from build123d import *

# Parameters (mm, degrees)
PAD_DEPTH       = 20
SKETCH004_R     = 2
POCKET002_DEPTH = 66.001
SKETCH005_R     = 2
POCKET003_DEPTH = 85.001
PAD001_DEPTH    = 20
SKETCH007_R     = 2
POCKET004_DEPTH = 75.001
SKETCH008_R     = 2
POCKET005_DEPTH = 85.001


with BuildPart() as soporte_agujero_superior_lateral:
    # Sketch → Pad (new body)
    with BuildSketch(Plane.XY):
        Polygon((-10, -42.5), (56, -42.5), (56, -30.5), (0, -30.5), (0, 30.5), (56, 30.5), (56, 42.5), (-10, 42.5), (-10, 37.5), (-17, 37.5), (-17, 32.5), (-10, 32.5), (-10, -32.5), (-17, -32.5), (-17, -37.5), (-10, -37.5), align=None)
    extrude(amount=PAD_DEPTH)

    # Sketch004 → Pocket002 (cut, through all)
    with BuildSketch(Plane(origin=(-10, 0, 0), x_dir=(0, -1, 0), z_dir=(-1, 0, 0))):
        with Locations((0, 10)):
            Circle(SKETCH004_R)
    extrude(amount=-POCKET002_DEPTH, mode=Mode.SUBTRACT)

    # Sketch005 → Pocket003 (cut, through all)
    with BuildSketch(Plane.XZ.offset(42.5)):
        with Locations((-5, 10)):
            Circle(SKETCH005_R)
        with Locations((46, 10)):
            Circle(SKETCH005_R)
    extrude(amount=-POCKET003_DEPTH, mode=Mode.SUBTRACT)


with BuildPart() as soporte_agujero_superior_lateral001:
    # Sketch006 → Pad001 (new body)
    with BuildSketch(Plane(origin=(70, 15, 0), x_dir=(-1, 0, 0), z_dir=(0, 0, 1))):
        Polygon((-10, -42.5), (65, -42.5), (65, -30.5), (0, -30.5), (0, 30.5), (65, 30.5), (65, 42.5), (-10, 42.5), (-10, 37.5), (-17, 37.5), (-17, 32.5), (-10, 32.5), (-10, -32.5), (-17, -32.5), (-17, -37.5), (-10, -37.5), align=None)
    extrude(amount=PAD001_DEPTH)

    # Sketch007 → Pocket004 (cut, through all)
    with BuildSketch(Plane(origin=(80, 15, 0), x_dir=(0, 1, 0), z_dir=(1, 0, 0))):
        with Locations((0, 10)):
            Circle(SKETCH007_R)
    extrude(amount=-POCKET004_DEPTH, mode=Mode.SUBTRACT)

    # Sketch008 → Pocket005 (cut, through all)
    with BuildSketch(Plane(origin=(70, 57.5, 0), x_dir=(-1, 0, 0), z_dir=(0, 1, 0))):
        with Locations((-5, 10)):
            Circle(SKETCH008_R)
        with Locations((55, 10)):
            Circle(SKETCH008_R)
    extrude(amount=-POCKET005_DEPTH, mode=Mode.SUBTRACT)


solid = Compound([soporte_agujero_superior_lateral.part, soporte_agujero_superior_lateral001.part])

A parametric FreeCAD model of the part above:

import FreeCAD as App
import Part
import Sketcher
from FreeCAD import Vector


def add_polygon(sketch, points):
    """Adds a closed chain of lines whose ends are joined by coincident constraints."""
    first, n = sketch.GeometryCount, len(points)
    for a, b in zip(points, points[1:] + points[:1]):
        sketch.addGeometry(Part.LineSegment(App.Vector(*a, 0), App.Vector(*b, 0)), False)
    for i in range(n):
        sketch.addConstraint(Sketcher.Constraint("Coincident", first + i, 2, first + (i + 1) % n, 1))

doc = App.newDocument("Part")
body = doc.addObject("PartDesign::Body", "Body")

# Sketch on XY plane
sketch1 = body.newObject("Sketcher::SketchObject", "Sketch")
sketch1.AttachmentSupport = (doc.getObject("XY_Plane"), [""])
sketch1.MapMode = "FlatFace"
add_polygon(sketch1, [(-10, -42), (56, -42), (56, -30), (0, -30), (0, 30), (56, 30), (56, 42), (-10, 42), (-10, 38), (-17, 38), (-17, 32), (-10, 32), (-10, -32), (-17, -32), (-17, -38), (-10, -38)])  # lines 0-15
sketch1.addConstraint([
    Sketcher.Constraint("Horizontal", 0),
    Sketcher.Constraint("Vertical", 1),
    Sketcher.Constraint("Horizontal", 2),
    Sketcher.Constraint("Vertical", 3),
    Sketcher.Constraint("Horizontal", 4),
    Sketcher.Constraint("Vertical", 5),
    Sketcher.Constraint("Horizontal", 6),
    Sketcher.Constraint("Vertical", 7),
    Sketcher.Constraint("Horizontal", 8),
    Sketcher.Constraint("Vertical", 9),
    Sketcher.Constraint("Horizontal", 10),
    Sketcher.Constraint("Vertical", 11),
    Sketcher.Constraint("Horizontal", 12),
    Sketcher.Constraint("Vertical", 13),
    Sketcher.Constraint("Horizontal", 14),
    Sketcher.Constraint("Vertical", 15),
    Sketcher.Constraint("Symmetric", 2, 2, 3, 2, -1, 1),
    Sketcher.Constraint("Symmetric", 0, 2, 5, 2, -1),
    Sketcher.Constraint("Symmetric", 9, 2, 12, 2, -1),
    Sketcher.Constraint("Symmetric", 7, 2, 14, 2, -1),
    Sketcher.Constraint("Vertical", 7, 2, 10, 2),
    Sketcher.Constraint("Equal", 7, 9),
    Sketcher.Constraint("DistanceX", 0, 1, 0, 2, 66.0),
    Sketcher.Constraint("DistanceX", 2, 2, 2, 1, 56.0),
    Sketcher.Constraint("DistanceX", 8, 2, 8, 1, 7.0),
    Sketcher.Constraint("DistanceY", 1, 1, 1, 2, 12.0),
    Sketcher.Constraint("DistanceY", 3, 1, 3, 2, 61.0),
    Sketcher.Constraint("DistanceY", 7, 2, 7, 1, 5.0),
])
pad1 = body.newObject("PartDesign::Pad", "Pad")
pad1.Profile = sketch1
pad1.Length = 20

# Sketch on YZ plane
sketch2 = body.newObject("Sketcher::SketchObject", "Sketch001")
sketch2.AttachmentSupport = (doc.getObject("YZ_Plane"), [""])
sketch2.MapMode = "FlatFace"
sketch2.AttachmentOffset = App.Placement(Vector(0, 0, -10), App.Rotation())
sketch2.addGeometry(Part.Circle(Vector(0, 10, 0), Vector(0, 0, 1), 2), False)
sketch2.addConstraint([
    Sketcher.Constraint("PointOnObject", 0, 3, -2),
    Sketcher.Constraint("Diameter", 0, 4.0),
    Sketcher.Constraint("DistanceY", -1, 1, 0, 3, 10.0),
])
pocket1 = body.newObject("PartDesign::Pocket", "Pocket")
pocket1.Profile = sketch2
pocket1.Type = "ThroughAll"
pocket1.Reversed = True

# Sketch on XZ plane
sketch3 = body.newObject("Sketcher::SketchObject", "Sketch002")
sketch3.AttachmentSupport = (doc.getObject("XZ_Plane"), [""])
sketch3.MapMode = "FlatFace"
sketch3.AttachmentOffset = App.Placement(Vector(0, 0, 42.5), App.Rotation())
sketch3.addGeometry([
    Part.Circle(Vector(-5, 10, 0), Vector(0, 0, 1), 2),
    Part.Circle(Vector(46, 10, 0), Vector(0, 0, 1), 2),
], False)
sketch3.addConstraint([
    Sketcher.Constraint("Equal", 0, 1),
    Sketcher.Constraint("Horizontal", 0, 3, 1, 3),
    Sketcher.Constraint("Diameter", 0, 4.0),
    Sketcher.Constraint("DistanceX", 0, 3, -1, 1, 5.0),
    Sketcher.Constraint("DistanceY", -1, 1, 0, 3, 10.0),
    Sketcher.Constraint("DistanceX", -1, 1, 1, 3, 46.0),
])
pocket2 = body.newObject("PartDesign::Pocket", "Pocket001")
pocket2.Profile = sketch3
pocket2.Type = "ThroughAll"
body2 = doc.addObject("PartDesign::Body", "Body001")

# Sketch on XY plane
sketch4 = body2.newObject("Sketcher::SketchObject", "Sketch003")
sketch4.AttachmentSupport = (doc.getObject("XY_Plane001"), [""])
sketch4.MapMode = "FlatFace"
add_polygon(sketch4, [(80, 58), (5, 58), (5, 46), (70, 46), (70, -16), (5, -16), (5, -28), (80, -28), (80, -22), (87, -22), (87, -18), (80, -18), (80, 48), (87, 48), (87, 52), (80, 52)])  # lines 0-15
sketch4.addConstraint([
    Sketcher.Constraint("Horizontal", 0),
    Sketcher.Constraint("Vertical", 1),
    Sketcher.Constraint("Horizontal", 2),
    Sketcher.Constraint("Vertical", 3),
    Sketcher.Constraint("Horizontal", 4),
    Sketcher.Constraint("Vertical", 5),
    Sketcher.Constraint("Horizontal", 6),
    Sketcher.Constraint("Vertical", 7),
    Sketcher.Constraint("Horizontal", 8),
    Sketcher.Constraint("Vertical", 9),
    Sketcher.Constraint("Horizontal", 10),
    Sketcher.Constraint("Vertical", 11),
    Sketcher.Constraint("Horizontal", 12),
    Sketcher.Constraint("Vertical", 13),
    Sketcher.Constraint("Horizontal", 14),
    Sketcher.Constraint("Vertical", 15),
    Sketcher.Constraint("Vertical", 1, 2, 4, 2),
    Sketcher.Constraint("Vertical", 7, 2, 10, 2),
    Sketcher.Constraint("Vertical", 9, 2, 12, 2),
    Sketcher.Constraint("Vertical", 11, 2, 14, 2),
    Sketcher.Constraint("Equal", 1, 5),
    Sketcher.Constraint("Equal", 7, 9),
    Sketcher.Constraint("Equal", 4, 11),
    Sketcher.Constraint("Equal", 9, 13),
    Sketcher.Constraint("Equal", 13, 15),
    Sketcher.Constraint("DistanceX", 0, 2, 0, 1, 75.0),
    Sketcher.Constraint("DistanceX", 2, 1, 2, 2, 65.0),
    Sketcher.Constraint("DistanceX", 8, 1, 8, 2, 7.0),
    Sketcher.Constraint("DistanceY", 1, 2, 1, 1, 12.0),
    Sketcher.Constraint("DistanceY", 3, 2, 3, 1, 61.0),
    Sketcher.Constraint("DistanceX", -1, 1, 0, 2, 5.0),
    Sketcher.Constraint("DistanceY", -1, 1, 0, 2, 57.5),
])
pad2 = body2.newObject("PartDesign::Pad", "Pad001")
pad2.Profile = sketch4
pad2.Length = 20

# Sketch on YZ plane
sketch5 = body2.newObject("Sketcher::SketchObject", "Sketch004")
sketch5.AttachmentSupport = (doc.getObject("YZ_Plane001"), [""])
sketch5.MapMode = "FlatFace"
sketch5.AttachmentOffset = App.Placement(Vector(0, 0, 80), App.Rotation())
sketch5.addGeometry(Part.Circle(Vector(15, 10, 0), Vector(0, 0, 1), 2), False)
sketch5.addConstraint([
    Sketcher.Constraint("Diameter", 0, 4.0),
    Sketcher.Constraint("DistanceX", -1, 1, 0, 3, 15.0),
    Sketcher.Constraint("DistanceY", -1, 1, 0, 3, 10.0),
])
pocket3 = body2.newObject("PartDesign::Pocket", "Pocket002")
pocket3.Profile = sketch5
pocket3.Type = "ThroughAll"

# Sketch on XZ plane
sketch6 = body2.newObject("Sketcher::SketchObject", "Sketch005")
sketch6.AttachmentSupport = (doc.getObject("XZ_Plane001"), [""])
sketch6.MapMode = "FlatFace"
sketch6.AttachmentOffset = App.Placement(Vector(0, 0, -57.5), App.Rotation())
sketch6.addGeometry([
    Part.Circle(Vector(75, 10, 0), Vector(0, 0, 1), 2),
    Part.Circle(Vector(15, 10, 0), Vector(0, 0, 1), 2),
], False)
sketch6.addConstraint([
    Sketcher.Constraint("Equal", 0, 1),
    Sketcher.Constraint("Horizontal", 0, 3, 1, 3),
    Sketcher.Constraint("Diameter", 0, 4.0),
    Sketcher.Constraint("DistanceX", -1, 1, 0, 3, 75.0),
    Sketcher.Constraint("DistanceY", -1, 1, 0, 3, 10.0),
    Sketcher.Constraint("DistanceX", -1, 1, 1, 3, 15.0),
])
pocket4 = body2.newObject("PartDesign::Pocket", "Pocket003")
pocket4.Profile = sketch6
pocket4.Type = "ThroughAll"
pocket4.Reversed = True

doc.recompute()
